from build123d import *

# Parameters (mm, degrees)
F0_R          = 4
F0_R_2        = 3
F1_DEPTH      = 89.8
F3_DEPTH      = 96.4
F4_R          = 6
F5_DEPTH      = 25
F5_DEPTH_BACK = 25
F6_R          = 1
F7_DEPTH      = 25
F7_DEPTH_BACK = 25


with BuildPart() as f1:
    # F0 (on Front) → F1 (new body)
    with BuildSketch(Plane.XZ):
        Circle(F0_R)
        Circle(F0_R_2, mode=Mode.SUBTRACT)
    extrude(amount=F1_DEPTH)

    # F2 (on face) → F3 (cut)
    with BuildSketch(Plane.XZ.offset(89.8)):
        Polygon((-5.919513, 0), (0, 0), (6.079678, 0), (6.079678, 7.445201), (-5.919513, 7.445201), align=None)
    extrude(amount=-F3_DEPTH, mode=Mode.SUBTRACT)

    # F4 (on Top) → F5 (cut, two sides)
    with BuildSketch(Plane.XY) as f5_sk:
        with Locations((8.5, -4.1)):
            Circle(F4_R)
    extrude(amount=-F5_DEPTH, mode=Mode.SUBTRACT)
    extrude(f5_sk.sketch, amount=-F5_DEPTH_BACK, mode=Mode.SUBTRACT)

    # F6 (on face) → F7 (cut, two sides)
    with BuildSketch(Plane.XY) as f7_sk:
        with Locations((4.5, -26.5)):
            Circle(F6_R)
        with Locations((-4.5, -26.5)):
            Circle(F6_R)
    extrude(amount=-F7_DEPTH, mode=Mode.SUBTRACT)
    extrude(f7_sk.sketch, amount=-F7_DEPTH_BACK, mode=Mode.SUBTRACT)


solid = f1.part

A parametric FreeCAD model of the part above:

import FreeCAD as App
import Part
import Sketcher

V = App.Vector
Q = App.Units.Quantity


def add_polygon(sketch, points):
    """Adds a closed chain of lines whose ends are joined by coincident constraints."""
    first, n = sketch.GeometryCount, len(points)
    for a, b in zip(points, points[1:] + points[:1]):
        sketch.addGeometry(Part.LineSegment(App.Vector(*a, 0), App.Vector(*b, 0)), False)
    for i in range(n):
        sketch.addConstraint(Sketcher.Constraint("Coincident", first + i, 2, first + (i + 1) % n, 1))

doc = App.newDocument("Part")
body = doc.addObject("PartDesign::Body", "Body")

sketch1 = doc.addObject("Sketcher::SketchObject", "Sketch")
body.addObject(sketch1)
sketch1.AttachmentSupport = (doc.XZ_Plane, [""])
sketch1.MapMode = "FlatFace"
sketch1.addGeometry(Part.Circle(V(0, 0, 0), V(0, 0, 1), 4), False)
sketch1.addGeometry(Part.Circle(V(0, 0, 0), V(0, 0, 1), 3), False)
sketch1.addConstraint(Sketcher.Constraint("Coincident", 0, 3, -1, 1))
sketch1.addConstraint(Sketcher.Constraint("Coincident", 1, 3, -1, 1))
sketch1.addConstraint(Sketcher.Constraint("Diameter", 0, Q("8 mm")))
sketch1.addConstraint(Sketcher.Constraint("Diameter", 1, Q("6 mm")))
pad1 = doc.addObject("PartDesign::Pad", "Pad")
body.addObject(pad1)
pad1.Profile = sketch1
pad1.Length = 89.8

sketch2 = doc.addObject("Sketcher::SketchObject", "Sketch001")
body.addObject(sketch2)
sketch2.AttachmentSupport = (doc.XZ_Plane, [""])
sketch2.MapMode = "FlatFace"
sketch2.AttachmentOffset = App.Placement(V(0, 0, 89.8), App.Rotation())
add_polygon(sketch2, [(-5.919513, 0), (6.079678, 0), (6.079678, 7.445201), (-5.919513, 7.445201)])
sketch2.addConstraint(Sketcher.Constraint("Horizontal", 0))
sketch2.addConstraint(Sketcher.Constraint("Vertical", 1))
sketch2.addConstraint(Sketcher.Constraint("Horizontal", 2))
sketch2.addConstraint(Sketcher.Constraint("Vertical", 3))
sketch2.addConstraint(Sketcher.Constraint("PointOnObject", 0, 2, -1))
sketch2.addConstraint(Sketcher.Constraint("DistanceY", 1, 1, 1, 2, Q("7.445201 mm")))
sketch2.addConstraint(Sketcher.Constraint("DistanceX", 0, 1, 0, 2, Q("11.999191 mm")))
sketch2.addConstraint(Sketcher.Constraint("DistanceX", -1, 1, 0, 2, Q("6.079678 mm")))
pocket1 = doc.addObject("PartDesign::Pocket", "Pocket")
body.addObject(pocket1)
pocket1.Profile = sketch2
pocket1.Length = 96.4

sketch3 = doc.addObject("Sketcher::SketchObject", "Sketch002")
body.addObject(sketch3)
sketch3.AttachmentSupport = (doc.XY_Plane, [""])
sketch3.MapMode = "FlatFace"
sketch3.addGeometry(Part.Circle(V(8.5, -4.1, 0), V(0, 0, 1), 6), False)
sketch3.addConstraint(Sketcher.Constraint("Diameter", 0, Q("12 mm")))
sketch3.addConstraint(Sketcher.Constraint("DistanceX", -1, 1, 0, 3, Q("8.5 mm")))
sketch3.addConstraint(Sketcher.Constraint("DistanceY", 0, 3, -1, 1, Q("4.1 mm")))
pocket2 = doc.addObject("PartDesign::Pocket", "Pocket001")
body.addObject(pocket2)
pocket2.Profile = sketch3
pocket2.Length = 25
pocket3 = doc.addObject("PartDesign::Pocket", "Pocket002")
body.addObject(pocket3)
pocket3.Profile = sketch3
pocket3.Length = 25

sketch4 = doc.addObject("Sketcher::SketchObject", "Sketch003")
body.addObject(sketch4)
sketch4.AttachmentSupport = (doc.XY_Plane, [""])
sketch4.MapMode = "FlatFace"
sketch4.addGeometry(Part.Circle(V(4.5, -26.5, 0), V(0, 0, 1), 1), False)
sketch4.addGeometry(Part.Circle(V(-4.5, -26.5, 0), V(0, 0, 1), 1), False)
sketch4.addConstraint(Sketcher.Constraint("Equal", 0, 1))
sketch4.addConstraint(Sketcher.Constraint("Symmetric", 0, 3, 1, 3, -2))
sketch4.addConstraint(Sketcher.Constraint("Diameter", 0, Q("2 mm")))
sketch4.addConstraint(Sketcher.Constraint("DistanceX", 1, 3, 0, 3, Q("9 mm")))
sketch4.addConstraint(Sketcher.Constraint("DistanceY", 0, 3, -1, 1, Q("26.5 mm")))
pocket4 = doc.addObject("PartDesign::Pocket", "Pocket003")
body.addObject(pocket4)
pocket4.Profile = sketch4
pocket4.Length = 25
pocket5 = doc.addObject("PartDesign::Pocket", "Pocket004")
body.addObject(pocket5)
pocket5.Profile = sketch4
pocket5.Length = 25

doc.recompute()
